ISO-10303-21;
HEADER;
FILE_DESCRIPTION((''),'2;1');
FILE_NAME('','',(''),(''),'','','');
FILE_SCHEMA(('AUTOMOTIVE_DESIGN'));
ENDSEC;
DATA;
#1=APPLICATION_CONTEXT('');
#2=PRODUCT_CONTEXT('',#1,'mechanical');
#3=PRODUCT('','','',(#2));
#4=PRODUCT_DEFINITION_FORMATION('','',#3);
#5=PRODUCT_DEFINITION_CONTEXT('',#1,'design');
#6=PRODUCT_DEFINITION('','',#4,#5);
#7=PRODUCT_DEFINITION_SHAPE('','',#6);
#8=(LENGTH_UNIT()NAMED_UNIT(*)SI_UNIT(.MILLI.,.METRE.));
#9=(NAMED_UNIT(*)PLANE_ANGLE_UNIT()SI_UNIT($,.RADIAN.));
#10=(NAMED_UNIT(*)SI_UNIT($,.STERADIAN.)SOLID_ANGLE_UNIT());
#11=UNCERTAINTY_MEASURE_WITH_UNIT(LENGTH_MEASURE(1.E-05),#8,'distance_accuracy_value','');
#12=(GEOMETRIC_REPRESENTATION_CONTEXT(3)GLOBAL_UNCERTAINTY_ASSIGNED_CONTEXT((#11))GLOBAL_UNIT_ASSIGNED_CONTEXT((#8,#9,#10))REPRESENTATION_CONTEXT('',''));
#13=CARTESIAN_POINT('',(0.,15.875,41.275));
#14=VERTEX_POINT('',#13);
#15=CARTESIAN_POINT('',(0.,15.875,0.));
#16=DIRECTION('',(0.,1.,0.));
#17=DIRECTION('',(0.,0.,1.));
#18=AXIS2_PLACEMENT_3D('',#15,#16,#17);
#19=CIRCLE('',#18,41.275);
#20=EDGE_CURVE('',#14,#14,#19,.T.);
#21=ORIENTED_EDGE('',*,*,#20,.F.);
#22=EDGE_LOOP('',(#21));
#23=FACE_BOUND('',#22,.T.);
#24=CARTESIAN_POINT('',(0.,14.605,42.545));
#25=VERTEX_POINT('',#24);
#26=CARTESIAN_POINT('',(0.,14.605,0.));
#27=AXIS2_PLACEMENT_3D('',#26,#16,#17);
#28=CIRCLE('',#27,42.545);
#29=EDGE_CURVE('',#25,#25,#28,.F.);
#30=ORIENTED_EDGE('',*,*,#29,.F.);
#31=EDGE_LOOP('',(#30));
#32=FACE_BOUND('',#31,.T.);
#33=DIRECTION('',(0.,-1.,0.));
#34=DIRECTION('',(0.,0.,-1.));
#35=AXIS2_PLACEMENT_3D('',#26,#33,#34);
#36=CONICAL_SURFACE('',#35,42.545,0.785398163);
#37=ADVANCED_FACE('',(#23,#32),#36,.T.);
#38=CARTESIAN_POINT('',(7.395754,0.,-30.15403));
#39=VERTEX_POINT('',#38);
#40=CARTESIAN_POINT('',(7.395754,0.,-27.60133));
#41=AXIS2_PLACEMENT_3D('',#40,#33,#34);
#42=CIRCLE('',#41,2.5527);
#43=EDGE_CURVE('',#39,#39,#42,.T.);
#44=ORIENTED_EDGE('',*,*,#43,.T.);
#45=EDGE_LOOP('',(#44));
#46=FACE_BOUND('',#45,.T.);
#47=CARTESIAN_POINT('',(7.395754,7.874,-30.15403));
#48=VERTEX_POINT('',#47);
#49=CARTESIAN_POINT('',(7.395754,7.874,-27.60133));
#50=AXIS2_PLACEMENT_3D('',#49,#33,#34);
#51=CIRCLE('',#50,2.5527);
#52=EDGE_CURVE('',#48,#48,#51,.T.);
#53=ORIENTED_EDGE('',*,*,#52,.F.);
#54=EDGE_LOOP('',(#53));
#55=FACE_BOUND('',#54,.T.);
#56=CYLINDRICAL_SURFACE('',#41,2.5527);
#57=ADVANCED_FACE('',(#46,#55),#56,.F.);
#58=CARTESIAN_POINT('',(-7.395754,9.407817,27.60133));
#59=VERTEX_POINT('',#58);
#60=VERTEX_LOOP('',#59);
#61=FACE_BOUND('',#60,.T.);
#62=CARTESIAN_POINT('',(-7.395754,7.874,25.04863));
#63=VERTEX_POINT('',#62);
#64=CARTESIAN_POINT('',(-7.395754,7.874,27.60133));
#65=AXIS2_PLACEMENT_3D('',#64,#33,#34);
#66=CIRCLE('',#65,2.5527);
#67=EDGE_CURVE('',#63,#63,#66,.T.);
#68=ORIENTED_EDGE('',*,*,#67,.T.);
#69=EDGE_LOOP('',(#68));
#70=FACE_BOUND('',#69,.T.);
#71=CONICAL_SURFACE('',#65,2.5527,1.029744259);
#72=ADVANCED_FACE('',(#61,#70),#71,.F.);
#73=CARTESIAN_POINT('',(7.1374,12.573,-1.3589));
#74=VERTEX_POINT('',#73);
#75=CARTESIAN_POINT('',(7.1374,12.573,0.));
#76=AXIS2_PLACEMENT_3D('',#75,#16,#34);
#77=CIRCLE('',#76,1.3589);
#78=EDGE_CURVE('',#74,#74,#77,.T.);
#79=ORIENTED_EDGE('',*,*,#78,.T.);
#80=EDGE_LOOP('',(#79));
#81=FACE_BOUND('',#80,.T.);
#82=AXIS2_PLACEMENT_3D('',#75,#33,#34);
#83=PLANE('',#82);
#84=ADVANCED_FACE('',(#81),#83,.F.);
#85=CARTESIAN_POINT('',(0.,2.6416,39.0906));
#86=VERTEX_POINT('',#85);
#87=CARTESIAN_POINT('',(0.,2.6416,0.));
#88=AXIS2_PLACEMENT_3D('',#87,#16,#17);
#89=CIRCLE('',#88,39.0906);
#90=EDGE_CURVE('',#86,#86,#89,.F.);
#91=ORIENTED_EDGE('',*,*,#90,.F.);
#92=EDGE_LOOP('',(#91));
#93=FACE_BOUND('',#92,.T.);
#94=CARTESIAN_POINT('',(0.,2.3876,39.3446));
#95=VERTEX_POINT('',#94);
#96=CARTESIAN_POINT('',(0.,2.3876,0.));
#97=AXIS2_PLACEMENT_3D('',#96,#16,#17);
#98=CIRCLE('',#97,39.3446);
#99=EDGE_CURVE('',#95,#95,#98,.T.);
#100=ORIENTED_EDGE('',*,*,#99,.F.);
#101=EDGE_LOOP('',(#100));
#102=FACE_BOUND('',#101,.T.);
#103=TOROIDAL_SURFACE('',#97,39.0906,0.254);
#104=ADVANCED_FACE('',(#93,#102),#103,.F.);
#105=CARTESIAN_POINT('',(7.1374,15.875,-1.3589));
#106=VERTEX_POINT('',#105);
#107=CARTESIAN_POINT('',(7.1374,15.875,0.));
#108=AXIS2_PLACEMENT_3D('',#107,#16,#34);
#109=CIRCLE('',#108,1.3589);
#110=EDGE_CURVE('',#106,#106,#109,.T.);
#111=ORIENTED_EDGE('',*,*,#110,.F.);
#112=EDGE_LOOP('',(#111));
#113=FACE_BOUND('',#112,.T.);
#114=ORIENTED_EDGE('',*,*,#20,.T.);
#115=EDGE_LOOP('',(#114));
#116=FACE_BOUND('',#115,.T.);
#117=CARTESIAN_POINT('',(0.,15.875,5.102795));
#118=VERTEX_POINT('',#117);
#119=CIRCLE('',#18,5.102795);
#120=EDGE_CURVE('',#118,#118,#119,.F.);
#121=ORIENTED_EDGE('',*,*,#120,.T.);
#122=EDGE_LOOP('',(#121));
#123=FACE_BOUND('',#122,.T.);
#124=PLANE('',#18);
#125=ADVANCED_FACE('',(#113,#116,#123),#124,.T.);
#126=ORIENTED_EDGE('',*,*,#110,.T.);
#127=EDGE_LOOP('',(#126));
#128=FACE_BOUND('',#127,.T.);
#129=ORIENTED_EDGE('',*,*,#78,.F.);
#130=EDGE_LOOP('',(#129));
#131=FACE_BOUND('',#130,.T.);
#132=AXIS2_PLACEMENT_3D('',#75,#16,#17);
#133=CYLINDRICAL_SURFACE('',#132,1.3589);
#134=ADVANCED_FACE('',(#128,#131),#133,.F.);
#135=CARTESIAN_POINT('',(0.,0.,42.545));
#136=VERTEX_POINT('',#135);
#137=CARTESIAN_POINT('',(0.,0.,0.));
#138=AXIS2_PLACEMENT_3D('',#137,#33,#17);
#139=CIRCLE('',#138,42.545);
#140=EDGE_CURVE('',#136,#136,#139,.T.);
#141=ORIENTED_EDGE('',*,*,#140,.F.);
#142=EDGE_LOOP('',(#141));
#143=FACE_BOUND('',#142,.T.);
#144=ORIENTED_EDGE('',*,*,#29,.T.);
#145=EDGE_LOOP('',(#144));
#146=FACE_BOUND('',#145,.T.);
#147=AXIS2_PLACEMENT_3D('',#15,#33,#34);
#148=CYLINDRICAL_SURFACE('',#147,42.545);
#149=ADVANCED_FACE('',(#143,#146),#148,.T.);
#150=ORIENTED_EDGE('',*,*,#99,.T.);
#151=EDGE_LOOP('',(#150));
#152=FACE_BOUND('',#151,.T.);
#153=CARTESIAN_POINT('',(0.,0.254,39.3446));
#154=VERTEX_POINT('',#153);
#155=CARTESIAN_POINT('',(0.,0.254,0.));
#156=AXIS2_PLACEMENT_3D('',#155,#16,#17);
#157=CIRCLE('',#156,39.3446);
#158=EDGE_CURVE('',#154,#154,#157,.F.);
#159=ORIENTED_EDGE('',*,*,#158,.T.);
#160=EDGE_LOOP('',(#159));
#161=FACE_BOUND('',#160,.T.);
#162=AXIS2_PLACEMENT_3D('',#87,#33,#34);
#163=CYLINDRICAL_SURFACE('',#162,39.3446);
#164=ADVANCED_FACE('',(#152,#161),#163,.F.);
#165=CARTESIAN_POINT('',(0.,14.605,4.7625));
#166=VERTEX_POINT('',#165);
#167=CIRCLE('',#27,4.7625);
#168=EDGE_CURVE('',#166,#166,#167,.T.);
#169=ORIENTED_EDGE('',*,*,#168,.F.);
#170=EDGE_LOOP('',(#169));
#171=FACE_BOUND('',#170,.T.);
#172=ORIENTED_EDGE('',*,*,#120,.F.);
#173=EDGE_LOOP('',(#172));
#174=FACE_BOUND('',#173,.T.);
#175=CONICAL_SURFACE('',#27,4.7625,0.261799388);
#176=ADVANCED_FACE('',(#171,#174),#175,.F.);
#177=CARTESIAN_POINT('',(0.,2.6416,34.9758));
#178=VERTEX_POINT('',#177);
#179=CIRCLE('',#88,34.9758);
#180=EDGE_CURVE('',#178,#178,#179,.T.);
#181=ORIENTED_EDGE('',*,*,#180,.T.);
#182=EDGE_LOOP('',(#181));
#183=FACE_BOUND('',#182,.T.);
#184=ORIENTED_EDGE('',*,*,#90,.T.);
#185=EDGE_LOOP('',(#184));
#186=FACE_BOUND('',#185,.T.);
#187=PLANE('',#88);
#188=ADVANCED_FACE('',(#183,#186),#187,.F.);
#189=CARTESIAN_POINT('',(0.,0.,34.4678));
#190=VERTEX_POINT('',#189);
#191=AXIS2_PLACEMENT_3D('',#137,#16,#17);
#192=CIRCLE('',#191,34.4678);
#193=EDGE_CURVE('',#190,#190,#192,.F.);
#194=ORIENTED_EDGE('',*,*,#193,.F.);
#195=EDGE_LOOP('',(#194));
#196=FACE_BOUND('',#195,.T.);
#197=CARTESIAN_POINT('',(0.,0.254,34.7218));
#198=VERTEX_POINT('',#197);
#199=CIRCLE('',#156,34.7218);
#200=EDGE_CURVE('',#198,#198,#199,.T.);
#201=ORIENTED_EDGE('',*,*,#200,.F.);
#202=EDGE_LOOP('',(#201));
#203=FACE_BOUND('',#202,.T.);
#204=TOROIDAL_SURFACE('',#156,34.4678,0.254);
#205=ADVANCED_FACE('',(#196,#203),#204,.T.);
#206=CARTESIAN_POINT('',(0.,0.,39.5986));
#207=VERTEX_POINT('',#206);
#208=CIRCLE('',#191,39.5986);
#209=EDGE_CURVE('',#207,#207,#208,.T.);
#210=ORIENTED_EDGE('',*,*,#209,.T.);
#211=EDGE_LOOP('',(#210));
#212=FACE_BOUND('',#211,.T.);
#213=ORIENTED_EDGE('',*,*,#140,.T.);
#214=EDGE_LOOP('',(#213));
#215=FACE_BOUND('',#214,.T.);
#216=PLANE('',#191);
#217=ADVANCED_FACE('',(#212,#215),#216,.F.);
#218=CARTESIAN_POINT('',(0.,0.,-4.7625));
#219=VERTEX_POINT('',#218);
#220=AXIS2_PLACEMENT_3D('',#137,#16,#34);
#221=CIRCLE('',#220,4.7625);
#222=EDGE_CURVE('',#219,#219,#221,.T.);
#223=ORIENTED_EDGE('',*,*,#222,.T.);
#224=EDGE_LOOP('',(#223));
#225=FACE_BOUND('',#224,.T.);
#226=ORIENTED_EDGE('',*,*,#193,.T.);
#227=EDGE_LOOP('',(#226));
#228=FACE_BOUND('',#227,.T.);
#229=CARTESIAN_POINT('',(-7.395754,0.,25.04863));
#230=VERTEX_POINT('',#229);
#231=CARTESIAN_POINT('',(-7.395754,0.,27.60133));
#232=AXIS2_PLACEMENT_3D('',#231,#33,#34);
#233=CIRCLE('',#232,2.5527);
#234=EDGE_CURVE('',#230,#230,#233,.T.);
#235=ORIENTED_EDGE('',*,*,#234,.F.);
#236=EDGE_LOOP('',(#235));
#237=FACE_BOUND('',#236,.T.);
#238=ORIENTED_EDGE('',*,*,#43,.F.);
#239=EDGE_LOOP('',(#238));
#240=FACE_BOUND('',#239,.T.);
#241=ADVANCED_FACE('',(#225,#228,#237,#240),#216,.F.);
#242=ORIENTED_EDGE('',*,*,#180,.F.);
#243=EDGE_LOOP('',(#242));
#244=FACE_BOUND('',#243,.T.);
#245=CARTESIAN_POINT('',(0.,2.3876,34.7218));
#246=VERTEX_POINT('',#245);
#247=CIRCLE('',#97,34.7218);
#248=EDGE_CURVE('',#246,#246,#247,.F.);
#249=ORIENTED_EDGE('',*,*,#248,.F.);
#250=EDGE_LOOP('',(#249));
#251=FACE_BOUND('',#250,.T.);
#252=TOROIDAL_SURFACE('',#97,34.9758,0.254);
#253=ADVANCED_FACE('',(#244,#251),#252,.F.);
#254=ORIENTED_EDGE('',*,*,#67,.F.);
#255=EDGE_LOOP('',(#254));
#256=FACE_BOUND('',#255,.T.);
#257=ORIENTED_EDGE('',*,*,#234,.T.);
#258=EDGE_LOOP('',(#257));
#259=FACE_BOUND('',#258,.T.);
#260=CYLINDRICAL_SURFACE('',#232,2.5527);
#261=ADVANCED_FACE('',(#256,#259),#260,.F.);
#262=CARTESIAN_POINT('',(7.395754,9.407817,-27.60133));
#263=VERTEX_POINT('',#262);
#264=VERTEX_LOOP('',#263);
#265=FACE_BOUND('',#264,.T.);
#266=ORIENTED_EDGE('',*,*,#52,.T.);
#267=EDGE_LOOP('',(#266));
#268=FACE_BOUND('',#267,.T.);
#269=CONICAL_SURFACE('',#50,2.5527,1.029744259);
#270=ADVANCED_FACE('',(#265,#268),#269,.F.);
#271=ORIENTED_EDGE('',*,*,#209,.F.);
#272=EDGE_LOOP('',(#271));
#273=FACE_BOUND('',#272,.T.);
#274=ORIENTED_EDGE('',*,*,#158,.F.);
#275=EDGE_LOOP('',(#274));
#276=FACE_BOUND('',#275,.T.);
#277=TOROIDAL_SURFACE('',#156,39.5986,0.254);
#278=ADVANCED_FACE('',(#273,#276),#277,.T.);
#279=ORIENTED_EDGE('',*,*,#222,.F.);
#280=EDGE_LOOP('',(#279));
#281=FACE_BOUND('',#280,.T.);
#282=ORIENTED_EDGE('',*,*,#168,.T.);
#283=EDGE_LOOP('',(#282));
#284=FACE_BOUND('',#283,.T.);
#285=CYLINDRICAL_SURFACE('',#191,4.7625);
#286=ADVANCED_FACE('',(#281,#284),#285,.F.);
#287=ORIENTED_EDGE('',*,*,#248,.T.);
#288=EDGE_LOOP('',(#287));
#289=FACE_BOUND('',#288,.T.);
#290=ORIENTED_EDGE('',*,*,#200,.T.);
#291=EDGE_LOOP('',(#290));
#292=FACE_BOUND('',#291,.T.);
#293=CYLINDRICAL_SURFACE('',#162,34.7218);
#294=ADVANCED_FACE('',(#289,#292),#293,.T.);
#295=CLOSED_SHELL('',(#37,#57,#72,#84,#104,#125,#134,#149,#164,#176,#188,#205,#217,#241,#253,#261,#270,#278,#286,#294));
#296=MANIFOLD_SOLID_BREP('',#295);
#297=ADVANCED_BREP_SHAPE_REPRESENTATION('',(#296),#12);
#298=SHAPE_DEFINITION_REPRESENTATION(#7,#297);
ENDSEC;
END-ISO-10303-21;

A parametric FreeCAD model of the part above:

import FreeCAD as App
import Part
import Sketcher

V = App.Vector
Q = App.Units.Quantity


def edges_at(feature, points):
    """Names of the edges that pass closest to the given points."""
    edges = feature.Shape.Edges
    near = lambda p: min(range(len(edges)), key=lambda i: edges[i].distToShape(Part.Vertex(*p))[0])
    return sorted({f"Edge{near(p) + 1}" for p in points})

doc = App.newDocument("Part")
body = doc.addObject("PartDesign::Body", "Body")

# Sketch on XZ plane
sketch1 = body.newObject("Sketcher::SketchObject", "Sketch")
sketch1.AttachmentSupport = (doc.getObject("XZ_Plane"), [""])
sketch1.MapMode = "FlatFace"
sketch1.addGeometry(Part.Circle(V(0, 0, 0), V(0, 0, 1), 43), False)
sketch1.addConstraint([
    Sketcher.Constraint("Coincident", 0, 3, -1, 1),
    Sketcher.Constraint("Diameter", 0, Q("3.35 in")),
])
pad1 = body.newObject("PartDesign::Pad", "Pad")
pad1.Profile = sketch1
pad1.Length = Q("0.625 in")
pad1.Reversed = True

# Sketch on XZ plane
sketch2 = body.newObject("Sketcher::SketchObject", "Sketch001")
sketch2.AttachmentSupport = (doc.getObject("XZ_Plane"), [""])
sketch2.MapMode = "FlatFace"
sketch2.addGeometry([
    Part.Circle(V(0, 0, 0), V(0, 0, 1), 39),
    Part.Circle(V(0, 0, 0), V(0, 0, 1), 35),
], False)
sketch2.addConstraint([
    Sketcher.Constraint("Coincident", 0, 3, -1, 1),
    Sketcher.Constraint("Coincident", 1, 3, -1, 1),
    Sketcher.Constraint("Diameter", 0, Q("3.098 in")),
    Sketcher.Constraint("Diameter", 1, Q("2.734 in")),
])
pocket1 = body.newObject("PartDesign::Pocket", "Pocket")
pocket1.Profile = sketch2
pocket1.Length = Q("0.104 in")

# Sketch on XZ plane
sketch3 = body.newObject("Sketcher::SketchObject", "Sketch002")
sketch3.AttachmentSupport = (doc.getObject("XZ_Plane"), [""])
sketch3.MapMode = "FlatFace"
sketch3.addGeometry([
    Part.Circle(V(7.4, -27.6, 0), V(0, 0, 1), 2.6),
    Part.Circle(V(-7.4, 27.6, 0), V(0, 0, 1), 2.6),
], False)
sketch3.addConstraint([
    Sketcher.Constraint("Equal", 0, 1),
    Sketcher.Constraint("Symmetric", 0, 3, 1, 3, -1, 1),
    Sketcher.Constraint("Diameter", 0, Q("0.201 in")),
    Sketcher.Constraint("DistanceY", 0, 3, -1, 1, 27.60133),
    Sketcher.Constraint("DistanceX", 1, 3, 0, 3, 14.791508),
])
doc.recompute()
hole = body.newObject("PartDesign::Hole", "Hole")
hole.Profile = sketch3
hole.ThreadType = "None"
hole.Diameter = Q("0.201 in")
hole.DepthType = "Dimension"
hole.Depth = Q("0.31 in")
hole.DrillPoint = "Angled"
hole.DrillPointAngle = 118

# Sketch on XZ plane
sketch4 = body.newObject("Sketcher::SketchObject", "Sketch003")
sketch4.AttachmentSupport = (doc.getObject("XZ_Plane"), [""])
sketch4.MapMode = "FlatFace"
sketch4.AttachmentOffset = App.Placement(V(0, 0, -0.625 * 25.4), App.Rotation())
sketch4.addGeometry(Part.Circle(V(0, 0, 0), V(0, 0, 1), 4.8), False)
sketch4.addConstraint([
    Sketcher.Constraint("Coincident", 0, 3, -1, 1),
    Sketcher.Constraint("Diameter", 0, Q("0.375 in")),
])
pocket2 = body.newObject("PartDesign::Pocket", "Pocket001")
pocket2.Profile = sketch4
pocket2.Type = "ThroughAll"
pocket2.Reversed = True

# Sketch on XZ plane
sketch5 = body.newObject("Sketcher::SketchObject", "Sketch004")
sketch5.AttachmentSupport = (doc.getObject("XZ_Plane"), [""])
sketch5.MapMode = "FlatFace"
sketch5.AttachmentOffset = App.Placement(V(0, 0, -0.625 * 25.4), App.Rotation())
sketch5.addGeometry(Part.Circle(V(7.1, 0, 0), V(0, 0, 1), 1.4), False)
sketch5.addConstraint([
    Sketcher.Constraint("PointOnObject", 0, 3, -1),
    Sketcher.Constraint("Diameter", 0, Q("0.107 in")),
    Sketcher.Constraint("DistanceX", -1, 1, 0, 3, Q("0.281 in")),
])
pocket3 = body.newObject("PartDesign::Pocket", "Pocket002")
pocket3.Profile = sketch5
pocket3.Length = Q("0.13 in")
pocket3.Reversed = True
doc.recompute()

chamfer = body.newObject("PartDesign::Chamfer", "Chamfer")
chamfer.Base = (pocket3, edges_at(pocket3, [(4.763, 15.875, 0)]))
chamfer.ChamferType = "Two distances"
chamfer.Size = 0.340295
chamfer.Size2 = Q("0.05 in")
doc.recompute()

chamfer2 = body.newObject("PartDesign::Chamfer", "Chamfer001")
chamfer2.Base = (chamfer, edges_at(chamfer, [(-42.545, 15.875, 0)]))
chamfer2.Size = Q("0.05 in")
doc.recompute()

fillet = body.newObject("PartDesign::Fillet", "Fillet")
fillet.Base = (chamfer2, edges_at(chamfer2, [
    (-39.345, 2.642, 0),
    (-34.722, 2.642, 0),
    (-39.345, 0, 0),
    (-34.722, 0, 0),
]))
fillet.Radius = Q("0.01 in")

doc.recompute()
